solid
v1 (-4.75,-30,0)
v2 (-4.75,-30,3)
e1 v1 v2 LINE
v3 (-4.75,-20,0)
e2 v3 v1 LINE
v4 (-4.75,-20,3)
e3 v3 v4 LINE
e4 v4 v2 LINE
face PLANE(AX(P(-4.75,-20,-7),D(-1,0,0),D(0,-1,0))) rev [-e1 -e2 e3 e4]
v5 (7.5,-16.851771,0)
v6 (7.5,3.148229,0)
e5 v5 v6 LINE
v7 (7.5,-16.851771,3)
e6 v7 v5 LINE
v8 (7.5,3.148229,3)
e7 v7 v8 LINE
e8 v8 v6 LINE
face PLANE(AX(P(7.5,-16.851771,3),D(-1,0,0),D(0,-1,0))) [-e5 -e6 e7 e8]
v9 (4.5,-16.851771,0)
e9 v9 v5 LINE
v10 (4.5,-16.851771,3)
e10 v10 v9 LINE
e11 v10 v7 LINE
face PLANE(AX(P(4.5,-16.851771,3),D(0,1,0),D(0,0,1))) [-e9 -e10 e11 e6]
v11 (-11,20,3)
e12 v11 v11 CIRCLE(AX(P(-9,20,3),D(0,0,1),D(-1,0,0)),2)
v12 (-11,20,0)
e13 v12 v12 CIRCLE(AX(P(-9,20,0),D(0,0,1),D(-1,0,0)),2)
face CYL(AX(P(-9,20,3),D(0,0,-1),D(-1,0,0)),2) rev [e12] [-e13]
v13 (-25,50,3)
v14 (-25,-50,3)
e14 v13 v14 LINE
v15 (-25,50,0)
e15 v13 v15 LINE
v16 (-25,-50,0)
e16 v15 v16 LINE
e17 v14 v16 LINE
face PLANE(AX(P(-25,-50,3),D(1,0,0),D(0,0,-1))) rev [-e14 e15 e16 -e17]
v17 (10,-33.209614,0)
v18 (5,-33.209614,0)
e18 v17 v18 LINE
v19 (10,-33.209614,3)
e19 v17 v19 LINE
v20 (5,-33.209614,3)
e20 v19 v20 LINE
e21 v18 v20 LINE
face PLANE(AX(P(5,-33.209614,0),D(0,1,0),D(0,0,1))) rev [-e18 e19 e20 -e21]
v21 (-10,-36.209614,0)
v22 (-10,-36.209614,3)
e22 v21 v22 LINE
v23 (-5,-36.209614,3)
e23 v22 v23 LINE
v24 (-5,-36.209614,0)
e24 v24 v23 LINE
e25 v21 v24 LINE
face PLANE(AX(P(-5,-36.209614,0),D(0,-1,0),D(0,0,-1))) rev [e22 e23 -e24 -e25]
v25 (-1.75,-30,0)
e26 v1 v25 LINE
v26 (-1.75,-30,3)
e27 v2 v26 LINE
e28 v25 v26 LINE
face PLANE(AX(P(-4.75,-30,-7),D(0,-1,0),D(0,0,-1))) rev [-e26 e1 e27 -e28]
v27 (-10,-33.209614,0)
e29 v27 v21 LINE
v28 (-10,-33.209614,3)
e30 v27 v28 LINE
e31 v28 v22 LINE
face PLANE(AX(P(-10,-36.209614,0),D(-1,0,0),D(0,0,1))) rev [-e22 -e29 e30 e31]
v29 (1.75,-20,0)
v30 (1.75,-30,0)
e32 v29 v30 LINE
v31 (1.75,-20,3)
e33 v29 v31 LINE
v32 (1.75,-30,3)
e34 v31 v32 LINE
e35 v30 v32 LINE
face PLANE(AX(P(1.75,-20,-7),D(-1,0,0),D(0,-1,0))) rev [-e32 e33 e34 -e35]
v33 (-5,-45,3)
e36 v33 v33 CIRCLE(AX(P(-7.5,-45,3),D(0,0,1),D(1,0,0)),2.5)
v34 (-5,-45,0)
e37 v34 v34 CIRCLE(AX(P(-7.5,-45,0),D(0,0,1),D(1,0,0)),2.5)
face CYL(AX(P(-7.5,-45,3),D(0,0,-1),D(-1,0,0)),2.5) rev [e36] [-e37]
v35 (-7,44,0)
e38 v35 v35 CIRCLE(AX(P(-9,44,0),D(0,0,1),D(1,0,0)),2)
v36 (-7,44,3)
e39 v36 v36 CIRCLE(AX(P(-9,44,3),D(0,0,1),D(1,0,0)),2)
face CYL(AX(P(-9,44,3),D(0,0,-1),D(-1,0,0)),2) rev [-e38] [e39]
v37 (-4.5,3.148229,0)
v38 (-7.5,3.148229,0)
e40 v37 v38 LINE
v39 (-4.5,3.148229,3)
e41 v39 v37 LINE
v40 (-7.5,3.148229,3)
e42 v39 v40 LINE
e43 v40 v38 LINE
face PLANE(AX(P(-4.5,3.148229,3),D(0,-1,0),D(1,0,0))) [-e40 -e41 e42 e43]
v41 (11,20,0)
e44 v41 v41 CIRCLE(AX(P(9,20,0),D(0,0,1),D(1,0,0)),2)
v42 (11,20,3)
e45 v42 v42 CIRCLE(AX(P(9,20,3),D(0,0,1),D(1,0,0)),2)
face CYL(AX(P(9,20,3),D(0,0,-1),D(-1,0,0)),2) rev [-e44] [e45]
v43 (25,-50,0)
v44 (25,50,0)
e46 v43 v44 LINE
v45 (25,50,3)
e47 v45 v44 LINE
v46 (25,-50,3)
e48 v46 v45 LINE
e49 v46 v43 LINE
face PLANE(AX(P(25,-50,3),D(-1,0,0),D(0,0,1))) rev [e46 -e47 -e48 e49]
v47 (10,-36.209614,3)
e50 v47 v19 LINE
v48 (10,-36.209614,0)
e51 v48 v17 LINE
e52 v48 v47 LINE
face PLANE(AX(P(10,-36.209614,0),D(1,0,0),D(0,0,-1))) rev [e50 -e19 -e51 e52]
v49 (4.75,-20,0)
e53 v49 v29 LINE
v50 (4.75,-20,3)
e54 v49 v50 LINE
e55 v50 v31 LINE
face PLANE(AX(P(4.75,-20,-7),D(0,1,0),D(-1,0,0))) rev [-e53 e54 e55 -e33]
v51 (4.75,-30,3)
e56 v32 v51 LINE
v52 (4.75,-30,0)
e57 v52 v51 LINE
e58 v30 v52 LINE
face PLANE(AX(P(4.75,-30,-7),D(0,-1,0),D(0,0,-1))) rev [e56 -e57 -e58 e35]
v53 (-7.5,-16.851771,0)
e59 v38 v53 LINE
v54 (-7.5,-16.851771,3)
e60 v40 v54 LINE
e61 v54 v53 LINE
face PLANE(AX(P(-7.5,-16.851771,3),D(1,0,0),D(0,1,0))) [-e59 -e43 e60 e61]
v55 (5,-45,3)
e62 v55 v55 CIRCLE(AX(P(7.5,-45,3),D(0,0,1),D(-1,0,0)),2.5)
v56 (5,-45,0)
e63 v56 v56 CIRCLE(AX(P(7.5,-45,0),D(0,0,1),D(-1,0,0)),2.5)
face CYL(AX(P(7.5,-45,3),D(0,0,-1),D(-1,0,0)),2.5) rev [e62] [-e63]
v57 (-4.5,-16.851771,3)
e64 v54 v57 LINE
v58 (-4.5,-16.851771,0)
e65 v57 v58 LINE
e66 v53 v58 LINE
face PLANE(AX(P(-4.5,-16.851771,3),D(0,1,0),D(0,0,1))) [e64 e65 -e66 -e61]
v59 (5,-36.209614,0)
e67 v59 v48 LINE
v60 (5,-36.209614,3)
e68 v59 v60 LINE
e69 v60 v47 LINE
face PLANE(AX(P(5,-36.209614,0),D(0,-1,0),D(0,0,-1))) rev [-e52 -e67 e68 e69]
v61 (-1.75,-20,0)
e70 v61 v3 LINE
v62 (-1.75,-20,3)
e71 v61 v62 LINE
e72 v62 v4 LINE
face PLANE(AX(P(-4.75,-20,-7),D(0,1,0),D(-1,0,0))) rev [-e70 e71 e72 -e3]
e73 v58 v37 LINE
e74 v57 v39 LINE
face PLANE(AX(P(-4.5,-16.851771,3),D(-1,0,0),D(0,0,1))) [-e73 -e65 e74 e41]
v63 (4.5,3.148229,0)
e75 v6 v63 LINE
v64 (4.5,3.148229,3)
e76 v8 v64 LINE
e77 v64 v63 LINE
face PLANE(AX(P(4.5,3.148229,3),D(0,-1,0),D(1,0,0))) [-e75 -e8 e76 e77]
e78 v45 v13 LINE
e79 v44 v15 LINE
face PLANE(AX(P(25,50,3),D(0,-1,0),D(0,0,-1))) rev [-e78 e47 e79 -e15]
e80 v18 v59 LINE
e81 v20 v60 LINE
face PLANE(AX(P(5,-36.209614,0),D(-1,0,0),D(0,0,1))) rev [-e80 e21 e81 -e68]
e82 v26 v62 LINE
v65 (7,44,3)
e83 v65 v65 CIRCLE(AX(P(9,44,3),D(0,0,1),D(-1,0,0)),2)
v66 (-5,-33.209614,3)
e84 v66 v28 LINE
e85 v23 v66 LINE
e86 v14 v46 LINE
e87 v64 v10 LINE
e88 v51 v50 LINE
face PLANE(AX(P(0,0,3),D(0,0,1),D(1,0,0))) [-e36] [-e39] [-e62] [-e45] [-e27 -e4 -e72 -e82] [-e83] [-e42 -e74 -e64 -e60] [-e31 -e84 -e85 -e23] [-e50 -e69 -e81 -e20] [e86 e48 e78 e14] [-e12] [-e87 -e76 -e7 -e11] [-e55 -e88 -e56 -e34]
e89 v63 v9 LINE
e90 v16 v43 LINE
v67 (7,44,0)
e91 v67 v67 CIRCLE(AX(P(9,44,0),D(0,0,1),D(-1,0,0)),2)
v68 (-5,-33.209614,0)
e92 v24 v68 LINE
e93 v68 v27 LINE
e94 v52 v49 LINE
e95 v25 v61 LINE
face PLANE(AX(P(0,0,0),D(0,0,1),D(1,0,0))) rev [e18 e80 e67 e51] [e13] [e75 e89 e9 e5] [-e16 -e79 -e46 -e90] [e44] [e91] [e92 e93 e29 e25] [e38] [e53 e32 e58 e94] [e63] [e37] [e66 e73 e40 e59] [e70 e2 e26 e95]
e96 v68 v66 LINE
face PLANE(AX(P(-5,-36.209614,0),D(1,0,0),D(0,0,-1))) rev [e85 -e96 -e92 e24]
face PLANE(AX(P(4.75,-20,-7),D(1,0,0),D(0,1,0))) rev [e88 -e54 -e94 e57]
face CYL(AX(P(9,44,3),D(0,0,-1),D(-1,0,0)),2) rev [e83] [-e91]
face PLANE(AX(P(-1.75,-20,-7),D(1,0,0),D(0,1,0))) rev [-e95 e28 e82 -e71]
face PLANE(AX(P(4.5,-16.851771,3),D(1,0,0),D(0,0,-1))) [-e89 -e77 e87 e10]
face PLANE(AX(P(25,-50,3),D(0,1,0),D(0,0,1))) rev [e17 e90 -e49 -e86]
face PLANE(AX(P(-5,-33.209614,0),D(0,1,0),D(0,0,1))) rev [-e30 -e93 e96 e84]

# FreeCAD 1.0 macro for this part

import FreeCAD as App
import Part
import Sketcher
Q = App.Units.Quantity


def add_polygon(sketch, points):
    """Adds a closed chain of lines whose ends are joined by coincident constraints."""
    first, n = sketch.GeometryCount, len(points)
    for a, b in zip(points, points[1:] + points[:1]):
        sketch.addGeometry(Part.LineSegment(App.Vector(*a, 0), App.Vector(*b, 0)), False)
    for i in range(n):
        sketch.addConstraint(Sketcher.Constraint("Coincident", first + i, 2, first + (i + 1) % n, 1))

doc = App.newDocument("Part")
body = doc.addObject("PartDesign::Body", "Body")

sketch1 = body.newObject("Sketcher::SketchObject", "Sketch")
sketch1.AttachmentSupport = (doc.getObject("XY_Plane"), [""])
sketch1.MapMode = "FlatFace"
add_polygon(sketch1, [(-25, 50), (-25, -50), (25, -50), (25, 50)])
sketch1.addGeometry(Part.Circle(App.Vector(-7.5, -45, 0), App.Vector(0, 0, 1), 2.5), False)
add_polygon(sketch1, [(-4.5, -16.9), (-7.5, -16.9), (-7.5, 3.1), (-4.5, 3.1)])
sketch1.addGeometry(Part.Circle(App.Vector(7.5, -45, 0), App.Vector(0, 0, 1), 2.5), False)
add_polygon(sketch1, [(7.5, -16.9), (4.5, -16.9), (4.5, 3.1), (7.5, 3.1)])
sketch1.addGeometry(Part.Circle(App.Vector(-9, 20, 0), App.Vector(0, 0, 1), 2), False)
sketch1.addGeometry(Part.Circle(App.Vector(-9, 44, 0), App.Vector(0, 0, 1), 2), False)
sketch1.addGeometry(Part.Circle(App.Vector(9, 20, 0), App.Vector(0, 0, 1), 2), False)
sketch1.addGeometry(Part.Circle(App.Vector(9, 44, 0), App.Vector(0, 0, 1), 2), False)
sketch1.addConstraint(Sketcher.Constraint("Vertical", 0))
sketch1.addConstraint(Sketcher.Constraint("Horizontal", 1))
sketch1.addConstraint(Sketcher.Constraint("Vertical", 2))
sketch1.addConstraint(Sketcher.Constraint("Horizontal", 3))
sketch1.addConstraint(Sketcher.Constraint("Horizontal", 5))
sketch1.addConstraint(Sketcher.Constraint("Vertical", 6))
sketch1.addConstraint(Sketcher.Constraint("Horizontal", 7))
sketch1.addConstraint(Sketcher.Constraint("Vertical", 8))
sketch1.addConstraint(Sketcher.Constraint("Horizontal", 10))
sketch1.addConstraint(Sketcher.Constraint("Vertical", 11))
sketch1.addConstraint(Sketcher.Constraint("Horizontal", 12))
sketch1.addConstraint(Sketcher.Constraint("Vertical", 13))
sketch1.addConstraint(Sketcher.Constraint("Equal", 4, 9))
sketch1.addConstraint(Sketcher.Constraint("Equal", 14, 15))
sketch1.addConstraint(Sketcher.Constraint("Equal", 15, 16))
sketch1.addConstraint(Sketcher.Constraint("Equal", 16, 17))
sketch1.addConstraint(Sketcher.Constraint("Symmetric", 0, 2, 2, 2, -1, 1))
sketch1.addConstraint(Sketcher.Constraint("Symmetric", 4, 3, 9, 3, -2))
sketch1.addConstraint(Sketcher.Constraint("Symmetric", 14, 3, 16, 3, -2))
sketch1.addConstraint(Sketcher.Constraint("Symmetric", 15, 3, 17, 3, -2))
sketch1.addConstraint(Sketcher.Constraint("Symmetric", 8, 2, 10, 2, -2))
sketch1.addConstraint(Sketcher.Constraint("Symmetric", 6, 2, 12, 2, -2))
sketch1.addConstraint(Sketcher.Constraint("Vertical", 14, 3, 15, 3))
sketch1.addConstraint(Sketcher.Constraint("Vertical", 4, 3, 5, 2))
sketch1.addConstraint(Sketcher.Constraint("Diameter", 4, Q("5 mm")))
sketch1.addConstraint(Sketcher.Constraint("Diameter", 14, Q("4 mm")))
sketch1.addConstraint(Sketcher.Constraint("DistanceX", 1, 1, 1, 2, Q("50 mm")))
sketch1.addConstraint(Sketcher.Constraint("DistanceX", 5, 2, 5, 1, Q("3 mm")))
sketch1.addConstraint(Sketcher.Constraint("DistanceY", 0, 2, 0, 1, Q("100 mm")))
sketch1.addConstraint(Sketcher.Constraint("DistanceY", 6, 1, 6, 2, Q("20 mm")))
sketch1.addConstraint(Sketcher.Constraint("DistanceY", 4, 3, -1, 1, Q("45 mm")))
sketch1.addConstraint(Sketcher.Constraint("DistanceX", 14, 3, -1, 1, Q("9 mm")))
sketch1.addConstraint(Sketcher.Constraint("DistanceY", -1, 1, 14, 3, Q("20 mm")))
sketch1.addConstraint(Sketcher.Constraint("DistanceY", -1, 1, 15, 3, Q("44 mm")))
sketch1.addConstraint(Sketcher.Constraint("DistanceX", 4, 3, 9, 3, Q("15 mm")))
sketch1.addConstraint(Sketcher.Constraint("DistanceY", 5, 2, -1, 1, Q("16.851771 mm")))
pad1 = body.newObject("PartDesign::Pad", "Pad")
pad1.Profile = sketch1
pad1.Length = 3

sketch2 = body.newObject("Sketcher::SketchObject", "Sketch001")
sketch2.AttachmentSupport = (doc.getObject("XY_Plane"), [""])
sketch2.MapMode = "FlatFace"
sketch2.AttachmentOffset = App.Placement(App.Vector(0, 0, 3), App.Rotation())
add_polygon(sketch2, [(1.8, -20), (1.8, -30), (4.8, -30), (4.8, -20)])
add_polygon(sketch2, [(-4.8, -20), (-4.8, -30), (-1.8, -30), (-1.8, -20)])
sketch2.addConstraint(Sketcher.Constraint("Vertical", 0))
sketch2.addConstraint(Sketcher.Constraint("Horizontal", 1))
sketch2.addConstraint(Sketcher.Constraint("Vertical", 2))
sketch2.addConstraint(Sketcher.Constraint("Horizontal", 3))
sketch2.addConstraint(Sketcher.Constraint("Vertical", 4))
sketch2.addConstraint(Sketcher.Constraint("Horizontal", 5))
sketch2.addConstraint(Sketcher.Constraint("Vertical", 6))
sketch2.addConstraint(Sketcher.Constraint("Horizontal", 7))
sketch2.addConstraint(Sketcher.Constraint("Symmetric", 1, 2, 4, 2, -2))
sketch2.addConstraint(Sketcher.Constraint("Symmetric", 3, 2, 6, 2, -2))
sketch2.addConstraint(Sketcher.Constraint("DistanceX", 1, 1, 1, 2, Q("3 mm")))
sketch2.addConstraint(Sketcher.Constraint("DistanceY", 0, 2, 0, 1, Q("10 mm")))
sketch2.addConstraint(Sketcher.Constraint("DistanceY", 0, 2, -1, 1, Q("30 mm")))
sketch2.addConstraint(Sketcher.Constraint("DistanceX", 4, 2, 0, 2, Q("6.5 mm")))
pocket1 = body.newObject("PartDesign::Pocket", "Pocket")
pocket1.Profile = sketch2
pocket1.Length = 10

sketch3 = body.newObject("Sketcher::SketchObject", "Sketch002")
sketch3.AttachmentSupport = (doc.getObject("XY_Plane"), [""])
sketch3.MapMode = "FlatFace"
sketch3.AttachmentOffset = App.Placement(App.Vector(0, 0, 3), App.Rotation())
add_polygon(sketch3, [(-10, -33.2), (-10, -36.2), (-5, -36.2), (-5, -33.2)])
add_polygon(sketch3, [(5, -33.2), (5, -36.2), (10, -36.2), (10, -33.2)])
sketch3.addConstraint(Sketcher.Constraint("Vertical", 0))
sketch3.addConstraint(Sketcher.Constraint("Horizontal", 1))
sketch3.addConstraint(Sketcher.Constraint("Vertical", 2))
sketch3.addConstraint(Sketcher.Constraint("Horizontal", 3))
sketch3.addConstraint(Sketcher.Constraint("Vertical", 4))
sketch3.addConstraint(Sketcher.Constraint("Horizontal", 5))
sketch3.addConstraint(Sketcher.Constraint("Vertical", 6))
sketch3.addConstraint(Sketcher.Constraint("Horizontal", 7))
sketch3.addConstraint(Sketcher.Constraint("Symmetric", 1, 2, 4, 2, -2))
sketch3.addConstraint(Sketcher.Constraint("Symmetric", 3, 2, 6, 2, -2))
sketch3.addConstraint(Sketcher.Constraint("DistanceX", 1, 1, 1, 2, Q("5 mm")))
sketch3.addConstraint(Sketcher.Constraint("DistanceY", 0, 2, 0, 1, Q("3 mm")))
sketch3.addConstraint(Sketcher.Constraint("DistanceX", 0, 2, -1, 1, Q("10 mm")))
sketch3.addConstraint(Sketcher.Constraint("DistanceY", 0, 2, -1, 1, Q("36.209614 mm")))
pocket2 = body.newObject("PartDesign::Pocket", "Pocket001")
pocket2.Profile = sketch3
pocket2.Type = "ThroughAll"

doc.recompute()
